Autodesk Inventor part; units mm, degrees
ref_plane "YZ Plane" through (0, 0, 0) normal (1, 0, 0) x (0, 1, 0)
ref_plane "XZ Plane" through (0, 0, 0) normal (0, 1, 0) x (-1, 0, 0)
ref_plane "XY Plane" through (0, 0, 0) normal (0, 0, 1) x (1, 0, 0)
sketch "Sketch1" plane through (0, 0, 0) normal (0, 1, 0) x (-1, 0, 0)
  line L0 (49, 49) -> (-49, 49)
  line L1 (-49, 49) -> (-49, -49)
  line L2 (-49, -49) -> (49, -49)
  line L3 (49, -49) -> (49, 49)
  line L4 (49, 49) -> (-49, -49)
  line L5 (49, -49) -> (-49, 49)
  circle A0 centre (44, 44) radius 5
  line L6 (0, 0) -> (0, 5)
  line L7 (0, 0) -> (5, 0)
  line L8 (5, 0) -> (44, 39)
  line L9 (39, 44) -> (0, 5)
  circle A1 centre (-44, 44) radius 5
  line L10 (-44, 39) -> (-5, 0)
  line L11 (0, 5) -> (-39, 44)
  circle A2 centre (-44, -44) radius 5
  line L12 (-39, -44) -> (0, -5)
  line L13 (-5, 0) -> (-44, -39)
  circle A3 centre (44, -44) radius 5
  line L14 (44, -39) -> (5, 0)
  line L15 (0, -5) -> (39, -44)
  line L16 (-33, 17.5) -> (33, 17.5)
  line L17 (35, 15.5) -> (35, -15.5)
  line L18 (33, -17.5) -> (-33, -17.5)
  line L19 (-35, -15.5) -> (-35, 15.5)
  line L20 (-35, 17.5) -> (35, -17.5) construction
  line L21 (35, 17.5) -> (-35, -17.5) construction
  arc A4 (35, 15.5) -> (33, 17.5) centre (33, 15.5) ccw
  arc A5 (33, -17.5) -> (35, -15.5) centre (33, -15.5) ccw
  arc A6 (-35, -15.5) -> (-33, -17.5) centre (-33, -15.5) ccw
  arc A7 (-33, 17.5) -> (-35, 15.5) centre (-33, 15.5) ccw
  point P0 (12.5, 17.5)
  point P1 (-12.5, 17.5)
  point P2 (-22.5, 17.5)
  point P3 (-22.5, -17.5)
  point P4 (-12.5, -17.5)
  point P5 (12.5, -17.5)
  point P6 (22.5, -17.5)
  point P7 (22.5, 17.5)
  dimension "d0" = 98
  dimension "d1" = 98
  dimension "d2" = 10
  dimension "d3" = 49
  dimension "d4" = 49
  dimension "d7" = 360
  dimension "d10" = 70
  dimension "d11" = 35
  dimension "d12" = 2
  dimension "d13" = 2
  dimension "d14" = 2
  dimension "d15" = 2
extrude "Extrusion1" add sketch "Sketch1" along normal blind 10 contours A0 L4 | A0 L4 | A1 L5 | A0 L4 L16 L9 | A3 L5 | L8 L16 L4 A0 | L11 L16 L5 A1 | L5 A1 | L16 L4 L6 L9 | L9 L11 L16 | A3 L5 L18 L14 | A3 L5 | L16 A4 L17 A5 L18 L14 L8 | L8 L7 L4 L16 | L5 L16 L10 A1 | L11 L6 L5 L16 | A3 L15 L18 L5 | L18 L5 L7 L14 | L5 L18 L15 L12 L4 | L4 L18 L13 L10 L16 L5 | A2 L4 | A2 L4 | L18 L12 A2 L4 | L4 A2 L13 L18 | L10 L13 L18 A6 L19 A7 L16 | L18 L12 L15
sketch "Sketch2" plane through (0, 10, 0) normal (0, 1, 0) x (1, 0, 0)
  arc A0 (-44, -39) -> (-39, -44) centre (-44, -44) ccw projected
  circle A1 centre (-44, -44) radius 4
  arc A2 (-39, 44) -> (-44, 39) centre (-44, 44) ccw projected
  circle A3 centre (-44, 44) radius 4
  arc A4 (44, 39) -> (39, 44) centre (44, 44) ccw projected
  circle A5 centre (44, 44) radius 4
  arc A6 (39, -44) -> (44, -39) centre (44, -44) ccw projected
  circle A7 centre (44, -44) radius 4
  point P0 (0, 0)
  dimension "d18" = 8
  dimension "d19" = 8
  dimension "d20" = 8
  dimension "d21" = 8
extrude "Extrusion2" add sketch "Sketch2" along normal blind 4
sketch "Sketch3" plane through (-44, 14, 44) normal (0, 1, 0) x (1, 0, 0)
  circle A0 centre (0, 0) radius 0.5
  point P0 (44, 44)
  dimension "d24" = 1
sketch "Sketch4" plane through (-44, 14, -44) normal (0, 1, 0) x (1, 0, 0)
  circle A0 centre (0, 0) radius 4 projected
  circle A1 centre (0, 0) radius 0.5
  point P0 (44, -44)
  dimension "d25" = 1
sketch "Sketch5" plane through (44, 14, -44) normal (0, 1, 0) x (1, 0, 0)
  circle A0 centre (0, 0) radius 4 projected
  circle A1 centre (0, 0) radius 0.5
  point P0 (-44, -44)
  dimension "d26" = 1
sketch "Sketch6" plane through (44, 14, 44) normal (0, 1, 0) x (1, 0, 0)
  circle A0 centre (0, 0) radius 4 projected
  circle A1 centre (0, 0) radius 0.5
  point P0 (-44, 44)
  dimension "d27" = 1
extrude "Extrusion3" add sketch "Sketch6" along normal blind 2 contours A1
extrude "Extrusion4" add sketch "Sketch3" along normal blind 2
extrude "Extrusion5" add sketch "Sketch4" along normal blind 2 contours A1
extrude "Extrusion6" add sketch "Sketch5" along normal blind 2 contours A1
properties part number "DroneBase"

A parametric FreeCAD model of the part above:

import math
import FreeCAD as App
import Part
import Sketcher
from FreeCAD import Vector
Q = App.Units.Quantity

doc = App.newDocument("Part")
params = doc.addObject("Spreadsheet::Sheet", "Params")
for row, (alias, value) in enumerate([
    ("sketch1_radius", "5 mm"),
    ("sketch1_radius2", "2 mm"),
    ("pad1_length", "10 mm"),
    ("sketch2_diameter", "8 mm"),
    ("pad2_length", "4 mm"),
    ("sketch3_diameter", "1 mm"),
    ("pad3_length", "2 mm"),
    ("sketch4_diameter", "1 mm"),
    ("pad4_length", "2 mm"),
    ("sketch5_diameter", "1 mm"),
    ("pad5_length", "2 mm"),
    ("sketch6_diameter", "1 mm"),
    ("pad6_length", "2 mm"),
], start=1):
    params.set(f"A{row}", alias)
    params.set(f"B{row}", "=" + value)
    params.setAlias(f"B{row}", alias)

body = doc.addObject("PartDesign::Body", "Body")

sketch1 = body.newObject("Sketcher::SketchObject", "Sketch")
sketch1.AttachmentSupport = (doc.getObject("XZ_Plane"), [""])
sketch1.MapMode = "FlatFace"
sketch1.addGeometry([
    Part.LineSegment(Vector(-39, 44, 0), Vector(-12.5, 17.5, 0)),
    Part.LineSegment(Vector(-12.5, 17.5, 0), Vector(12.5, 17.5, 0)),
    Part.LineSegment(Vector(12.5, 17.5, 0), Vector(39, 44, 0)),
    Part.ArcOfCircle(Part.Circle(Vector(44, 44, 0), Vector(0, 0, 1), 5), math.radians(-90), math.radians(180)),
    Part.LineSegment(Vector(44, 39, 0), Vector(22.5, 17.5, 0)),
    Part.LineSegment(Vector(22.5, 17.5, 0), Vector(33, 17.5, 0)),
    Part.ArcOfCircle(Part.Circle(Vector(33, 15.5, 0), Vector(0, 0, 1), 2), math.radians(0), math.radians(90)),
    Part.LineSegment(Vector(35, 15.5, 0), Vector(35, -15.5, 0)),
    Part.ArcOfCircle(Part.Circle(Vector(33, -15.5, 0), Vector(0, 0, 1), 2), math.radians(-90), math.radians(0)),
    Part.LineSegment(Vector(33, -17.5, 0), Vector(22.5, -17.5, 0)),
    Part.LineSegment(Vector(22.5, -17.5, 0), Vector(44, -39, 0)),
    Part.ArcOfCircle(Part.Circle(Vector(44, -44, 0), Vector(0, 0, 1), 5), math.radians(180), math.radians(450)),
    Part.LineSegment(Vector(39, -44, 0), Vector(12.5, -17.5, 0)),
    Part.LineSegment(Vector(12.5, -17.5, 0), Vector(-12.5, -17.5, 0)),
    Part.LineSegment(Vector(-12.5, -17.5, 0), Vector(-39, -44, 0)),
    Part.ArcOfCircle(Part.Circle(Vector(-44, -44, 0), Vector(0, 0, 1), 5), math.radians(90), math.radians(360)),
    Part.LineSegment(Vector(-44, -39, 0), Vector(-22.5, -17.5, 0)),
    Part.LineSegment(Vector(-22.5, -17.5, 0), Vector(-33, -17.5, 0)),
    Part.ArcOfCircle(Part.Circle(Vector(-33, -15.5, 0), Vector(0, 0, 1), 2), math.radians(180), math.radians(270)),
    Part.LineSegment(Vector(-35, -15.5, 0), Vector(-35, 15.5, 0)),
    Part.ArcOfCircle(Part.Circle(Vector(-33, 15.5, 0), Vector(0, 0, 1), 2), math.radians(90), math.radians(180)),
    Part.LineSegment(Vector(-33, 17.5, 0), Vector(-22.5, 17.5, 0)),
    Part.LineSegment(Vector(-22.5, 17.5, 0), Vector(-44, 39, 0)),
    Part.ArcOfCircle(Part.Circle(Vector(-44, 44, 0), Vector(0, 0, 1), 5), math.radians(0), math.radians(270)),
], False)
sketch1.addConstraint([
    Sketcher.Constraint("Coincident", 0, 2, 1, 1),
    Sketcher.Constraint("Coincident", 1, 2, 2, 1),
    Sketcher.Constraint("Coincident", 2, 2, 3, 2),
    Sketcher.Constraint("Coincident", 3, 1, 4, 1),
    Sketcher.Constraint("Coincident", 4, 2, 5, 1),
    Sketcher.Constraint("Tangent", 5, 2, 6, 2),
    Sketcher.Constraint("Tangent", 6, 1, 7, 1),
    Sketcher.Constraint("Tangent", 7, 2, 8, 2),
    Sketcher.Constraint("Tangent", 8, 1, 9, 1),
    Sketcher.Constraint("Coincident", 9, 2, 10, 1),
    Sketcher.Constraint("Coincident", 10, 2, 11, 2),
    Sketcher.Constraint("Coincident", 11, 1, 12, 1),
    Sketcher.Constraint("Coincident", 12, 2, 13, 1),
    Sketcher.Constraint("Coincident", 13, 2, 14, 1),
    Sketcher.Constraint("Coincident", 14, 2, 15, 2),
    Sketcher.Constraint("Coincident", 15, 1, 16, 1),
    Sketcher.Constraint("Coincident", 16, 2, 17, 1),
    Sketcher.Constraint("Tangent", 17, 2, 18, 2),
    Sketcher.Constraint("Tangent", 18, 1, 19, 1),
    Sketcher.Constraint("Tangent", 19, 2, 20, 2),
    Sketcher.Constraint("Tangent", 20, 1, 21, 1),
    Sketcher.Constraint("Coincident", 21, 2, 22, 1),
    Sketcher.Constraint("Coincident", 22, 2, 23, 2),
    Sketcher.Constraint("Coincident", 23, 1, 0, 1),
    Sketcher.Constraint("Horizontal", 1),
    Sketcher.Constraint("Horizontal", 5),
    Sketcher.Constraint("Vertical", 7),
    Sketcher.Constraint("Horizontal", 9),
    Sketcher.Constraint("Horizontal", 13),
    Sketcher.Constraint("Horizontal", 17),
    Sketcher.Constraint("Vertical", 19),
    Sketcher.Constraint("Horizontal", 21),
    Sketcher.Constraint("Equal", 6, 8),
    Sketcher.Constraint("Equal", 3, 11),
    Sketcher.Constraint("Equal", 11, 15),
    Sketcher.Constraint("Equal", 8, 18),
    Sketcher.Constraint("Equal", 18, 20),
    Sketcher.Constraint("Equal", 15, 23),
    Sketcher.Constraint("Symmetric", 3, 3, 15, 3, -1, 1),
    Sketcher.Constraint("Symmetric", 6, 3, 18, 3, -1, 1),
    Sketcher.Constraint("Symmetric", 11, 3, 23, 3, -1, 1),
    Sketcher.Constraint("Symmetric", 0, 2, 12, 2, -1, 1),
    Sketcher.Constraint("Symmetric", 9, 2, 21, 2, -1, 1),
    Sketcher.Constraint("Symmetric", 11, 3, 15, 3, -2),
    Sketcher.Constraint("Symmetric", 9, 2, 16, 2, -2),
    Sketcher.Constraint("Perpendicular", 0, 2),
    Sketcher.Constraint("Parallel", 2, 4),
    Sketcher.Constraint("Perpendicular", 4, 10),
    Sketcher.Constraint("Parallel", 10, 12),
    Sketcher.Constraint("Perpendicular", 12, 14),
    Sketcher.Constraint("Parallel", 14, 16),
    Sketcher.Constraint("Perpendicular", 16, 22),
    Sketcher.Constraint("Horizontal", 23, 3, 2, 2),
    Sketcher.Constraint("Horizontal", 1, 2, 4, 2),
    Sketcher.Constraint("Horizontal", 15, 3, 11, 1),
    Sketcher.Constraint("Horizontal", 11, 1, 14, 2),
    Sketcher.Constraint("Vertical", 11, 3, 3, 1),
    Sketcher.Constraint("Vertical", 4, 2, 9, 2),
    Sketcher.Constraint("Vertical", 3, 1, 10, 2),
    Sketcher.Constraint("Radius", 3, Q("5 mm")),
    Sketcher.Constraint("Radius", 6, Q("2 mm")),
    Sketcher.Constraint("DistanceX", -1, 1, 6, 1, Q("35 mm")),
    Sketcher.Constraint("DistanceY", 12, 2, 1, 2, Q("35 mm")),
    Sketcher.Constraint("DistanceX", 13, 2, 9, 2, Q("35 mm")),
    Sketcher.Constraint("DistanceX", -1, 1, 3, 3, Q("44 mm")),
])
sketch1.setExpression("Constraints[59]", "Params.sketch1_radius")
sketch1.setExpression("Constraints[60]", "Params.sketch1_radius2")
pad1 = body.newObject("PartDesign::Pad", "Pad")
pad1.Profile = sketch1
pad1.setExpression("Length", "Params.pad1_length")
pad1.Reversed = True

sketch2 = body.newObject("Sketcher::SketchObject", "Sketch001")
sketch2.AttachmentSupport = (doc.getObject("XZ_Plane"), [""])
sketch2.MapMode = "FlatFace"
sketch2.AttachmentOffset = App.Placement(Vector(0, 0, -10), App.Rotation())
sketch2.addGeometry([
    Part.Circle(Vector(-44, 44, 0), Vector(0, 0, 1), 4),
    Part.Circle(Vector(-44, -44, 0), Vector(0, 0, 1), 4),
    Part.Circle(Vector(44, -44, 0), Vector(0, 0, 1), 4),
    Part.Circle(Vector(44, 44, 0), Vector(0, 0, 1), 4),
], False)
sketch2.addConstraint([
    Sketcher.Constraint("Equal", 0, 1),
    Sketcher.Constraint("Equal", 1, 2),
    Sketcher.Constraint("Equal", 2, 3),
    Sketcher.Constraint("Symmetric", 0, 3, 2, 3, -1, 1),
    Sketcher.Constraint("Symmetric", 1, 3, 3, 3, -1, 1),
    Sketcher.Constraint("Symmetric", 1, 3, 2, 3, -2),
    Sketcher.Constraint("Diameter", 0, Q("8 mm")),
    Sketcher.Constraint("DistanceX", 0, 3, -1, 1, Q("44 mm")),
    Sketcher.Constraint("DistanceY", -1, 1, 0, 3, Q("44 mm")),
])
sketch2.setExpression("Constraints[6]", "Params.sketch2_diameter")
pad2 = body.newObject("PartDesign::Pad", "Pad001")
pad2.Profile = sketch2
pad2.setExpression("Length", "Params.pad2_length")
pad2.Reversed = True

sketch3 = body.newObject("Sketcher::SketchObject", "Sketch002")
sketch3.AttachmentSupport = (doc.getObject("XZ_Plane"), [""])
sketch3.MapMode = "FlatFace"
sketch3.AttachmentOffset = App.Placement(Vector(0, 0, -14), App.Rotation())
sketch3.addGeometry(Part.Circle(Vector(44, 44, 0), Vector(0, 0, 1), 0.5), False)
sketch3.addConstraint([
    Sketcher.Constraint("Diameter", 0, Q("1 mm")),
    Sketcher.Constraint("DistanceX", -1, 1, 0, 3, Q("44 mm")),
    Sketcher.Constraint("DistanceY", -1, 1, 0, 3, Q("44 mm")),
])
sketch3.setExpression("Constraints[0]", "Params.sketch3_diameter")
pad3 = body.newObject("PartDesign::Pad", "Pad002")
pad3.Profile = sketch3
pad3.setExpression("Length", "Params.pad3_length")
pad3.Reversed = True

sketch4 = body.newObject("Sketcher::SketchObject", "Sketch003")
sketch4.AttachmentSupport = (doc.getObject("XZ_Plane"), [""])
sketch4.MapMode = "FlatFace"
sketch4.AttachmentOffset = App.Placement(Vector(0, 0, -14), App.Rotation())
sketch4.addGeometry(Part.Circle(Vector(-44, 44, 0), Vector(0, 0, 1), 0.5), False)
sketch4.addConstraint([
    Sketcher.Constraint("Diameter", 0, Q("1 mm")),
    Sketcher.Constraint("DistanceX", 0, 3, -1, 1, Q("44 mm")),
    Sketcher.Constraint("DistanceY", -1, 1, 0, 3, Q("44 mm")),
])
sketch4.setExpression("Constraints[0]", "Params.sketch4_diameter")
pad4 = body.newObject("PartDesign::Pad", "Pad003")
pad4.Profile = sketch4
pad4.setExpression("Length", "Params.pad4_length")
pad4.Reversed = True

sketch5 = body.newObject("Sketcher::SketchObject", "Sketch004")
sketch5.AttachmentSupport = (doc.getObject("XZ_Plane"), [""])
sketch5.MapMode = "FlatFace"
sketch5.AttachmentOffset = App.Placement(Vector(0, 0, -14), App.Rotation())
sketch5.addGeometry(Part.Circle(Vector(-44, -44, 0), Vector(0, 0, 1), 0.5), False)
sketch5.addConstraint([
    Sketcher.Constraint("Diameter", 0, Q("1 mm")),
    Sketcher.Constraint("DistanceX", 0, 3, -1, 1, Q("44 mm")),
    Sketcher.Constraint("DistanceY", 0, 3, -1, 1, Q("44 mm")),
])
sketch5.setExpression("Constraints[0]", "Params.sketch5_diameter")
pad5 = body.newObject("PartDesign::Pad", "Pad004")
pad5.Profile = sketch5
pad5.setExpression("Length", "Params.pad5_length")
pad5.Reversed = True

sketch6 = body.newObject("Sketcher::SketchObject", "Sketch005")
sketch6.AttachmentSupport = (doc.getObject("XZ_Plane"), [""])
sketch6.MapMode = "FlatFace"
sketch6.AttachmentOffset = App.Placement(Vector(0, 0, -14), App.Rotation())
sketch6.addGeometry(Part.Circle(Vector(44, -44, 0), Vector(0, 0, 1), 0.5), False)
sketch6.addConstraint([
    Sketcher.Constraint("Diameter", 0, Q("1 mm")),
    Sketcher.Constraint("DistanceX", -1, 1, 0, 3, Q("44 mm")),
    Sketcher.Constraint("DistanceY", 0, 3, -1, 1, Q("44 mm")),
])
sketch6.setExpression("Constraints[0]", "Params.sketch6_diameter")
pad6 = body.newObject("PartDesign::Pad", "Pad005")
pad6.Profile = sketch6
pad6.setExpression("Length", "Params.pad6_length")
pad6.Reversed = True

doc.recompute()
